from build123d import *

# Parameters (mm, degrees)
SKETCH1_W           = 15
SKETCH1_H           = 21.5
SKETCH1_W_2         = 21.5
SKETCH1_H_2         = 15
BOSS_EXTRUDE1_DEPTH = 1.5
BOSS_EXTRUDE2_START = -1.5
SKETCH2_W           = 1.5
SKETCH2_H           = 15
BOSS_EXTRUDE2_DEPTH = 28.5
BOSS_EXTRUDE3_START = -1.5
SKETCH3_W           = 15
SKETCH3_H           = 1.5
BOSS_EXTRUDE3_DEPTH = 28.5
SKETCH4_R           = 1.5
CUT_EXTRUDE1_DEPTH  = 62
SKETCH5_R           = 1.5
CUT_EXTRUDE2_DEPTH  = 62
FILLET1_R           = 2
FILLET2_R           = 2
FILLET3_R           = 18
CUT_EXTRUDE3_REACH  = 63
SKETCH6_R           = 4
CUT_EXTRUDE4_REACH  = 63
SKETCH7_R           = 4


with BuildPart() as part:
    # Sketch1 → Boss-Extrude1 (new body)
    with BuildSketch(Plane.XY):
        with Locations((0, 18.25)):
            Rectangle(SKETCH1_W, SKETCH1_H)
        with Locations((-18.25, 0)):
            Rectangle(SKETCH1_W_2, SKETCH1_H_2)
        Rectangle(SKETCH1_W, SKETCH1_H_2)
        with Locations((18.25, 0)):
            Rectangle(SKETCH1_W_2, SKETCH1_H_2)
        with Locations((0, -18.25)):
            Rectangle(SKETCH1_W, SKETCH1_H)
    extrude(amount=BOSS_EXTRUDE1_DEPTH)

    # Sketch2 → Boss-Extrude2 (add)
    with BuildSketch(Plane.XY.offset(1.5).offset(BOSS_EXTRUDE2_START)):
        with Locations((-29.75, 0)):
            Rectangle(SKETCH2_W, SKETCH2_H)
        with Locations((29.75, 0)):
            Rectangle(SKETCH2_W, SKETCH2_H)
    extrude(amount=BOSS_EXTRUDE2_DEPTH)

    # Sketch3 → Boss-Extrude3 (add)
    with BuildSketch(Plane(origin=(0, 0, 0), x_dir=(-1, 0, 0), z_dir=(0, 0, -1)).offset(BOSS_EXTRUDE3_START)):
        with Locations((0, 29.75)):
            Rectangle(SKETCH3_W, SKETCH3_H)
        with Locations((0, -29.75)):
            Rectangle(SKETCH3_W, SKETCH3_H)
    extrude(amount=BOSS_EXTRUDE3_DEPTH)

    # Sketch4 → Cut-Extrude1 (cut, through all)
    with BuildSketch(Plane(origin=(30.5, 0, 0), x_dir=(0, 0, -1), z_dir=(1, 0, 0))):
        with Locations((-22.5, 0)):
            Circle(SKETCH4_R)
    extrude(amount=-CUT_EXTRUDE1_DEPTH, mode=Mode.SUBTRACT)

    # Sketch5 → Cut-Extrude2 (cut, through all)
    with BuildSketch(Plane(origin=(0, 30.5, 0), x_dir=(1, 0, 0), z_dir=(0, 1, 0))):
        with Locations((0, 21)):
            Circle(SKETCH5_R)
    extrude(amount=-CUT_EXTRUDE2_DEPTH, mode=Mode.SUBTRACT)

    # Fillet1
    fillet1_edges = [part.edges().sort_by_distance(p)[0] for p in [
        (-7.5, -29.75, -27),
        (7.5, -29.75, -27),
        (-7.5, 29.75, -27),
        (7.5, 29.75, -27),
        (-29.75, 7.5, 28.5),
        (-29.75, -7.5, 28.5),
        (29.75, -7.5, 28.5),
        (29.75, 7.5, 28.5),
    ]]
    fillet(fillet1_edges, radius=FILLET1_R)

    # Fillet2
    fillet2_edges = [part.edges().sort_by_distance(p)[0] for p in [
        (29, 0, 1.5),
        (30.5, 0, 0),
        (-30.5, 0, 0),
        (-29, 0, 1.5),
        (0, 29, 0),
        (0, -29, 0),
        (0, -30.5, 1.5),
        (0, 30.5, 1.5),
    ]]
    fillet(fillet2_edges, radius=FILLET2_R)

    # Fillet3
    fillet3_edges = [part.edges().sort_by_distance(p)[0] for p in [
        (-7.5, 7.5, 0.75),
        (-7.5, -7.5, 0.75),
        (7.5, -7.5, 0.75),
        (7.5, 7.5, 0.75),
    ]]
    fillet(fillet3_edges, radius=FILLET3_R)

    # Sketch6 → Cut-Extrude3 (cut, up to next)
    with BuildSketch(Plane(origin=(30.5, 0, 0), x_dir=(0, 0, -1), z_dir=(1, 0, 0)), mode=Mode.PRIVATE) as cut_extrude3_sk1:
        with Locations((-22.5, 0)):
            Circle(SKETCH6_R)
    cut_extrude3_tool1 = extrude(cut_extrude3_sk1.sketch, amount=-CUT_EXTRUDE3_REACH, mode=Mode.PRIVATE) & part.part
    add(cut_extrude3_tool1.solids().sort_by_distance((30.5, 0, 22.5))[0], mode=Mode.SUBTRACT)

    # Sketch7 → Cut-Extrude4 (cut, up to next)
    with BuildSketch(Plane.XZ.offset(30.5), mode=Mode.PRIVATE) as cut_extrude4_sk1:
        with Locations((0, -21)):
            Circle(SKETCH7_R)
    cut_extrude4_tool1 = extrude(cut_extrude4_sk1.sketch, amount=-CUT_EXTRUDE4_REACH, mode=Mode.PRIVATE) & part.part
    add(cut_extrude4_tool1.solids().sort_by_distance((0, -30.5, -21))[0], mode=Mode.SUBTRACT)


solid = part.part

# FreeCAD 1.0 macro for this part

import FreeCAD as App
import Part
import Sketcher

V = App.Vector


def edges_at(feature, points):
    """Names of the edges that pass closest to the given points."""
    edges = feature.Shape.Edges
    near = lambda p: min(range(len(edges)), key=lambda i: edges[i].distToShape(Part.Vertex(*p))[0])
    return sorted({f"Edge{near(p) + 1}" for p in points})

doc = App.newDocument("Part")
body = doc.addObject("PartDesign::Body", "Body")

sketch1 = body.newObject("Sketcher::SketchObject", "Sketch")
sketch1.AttachmentSupport = (doc.getObject("XY_Plane"), [""])
sketch1.MapMode = "FlatFace"
sketch1.addGeometry([
    Part.LineSegment(V(-8, 29, 0), V(-8, 8, 0)),
    Part.LineSegment(V(-8, 8, 0), V(-29, 8, 0)),
    Part.LineSegment(V(-29, 8, 0), V(-29, -8, 0)),
    Part.LineSegment(V(-29, -8, 0), V(-8, -8, 0)),
    Part.LineSegment(V(-8, -8, 0), V(-8, -29, 0)),
    Part.LineSegment(V(-8, -29, 0), V(8, -29, 0)),
    Part.LineSegment(V(8, -29, 0), V(8, -8, 0)),
    Part.LineSegment(V(8, -8, 0), V(29, -8, 0)),
    Part.LineSegment(V(29, -8, 0), V(29, 8, 0)),
    Part.LineSegment(V(29, 8, 0), V(8, 8, 0)),
    Part.LineSegment(V(8, 8, 0), V(8, 29, 0)),
    Part.LineSegment(V(8, 29, 0), V(-8, 29, 0)),
], False)
sketch1.addConstraint([
    Sketcher.Constraint("Coincident", 0, 2, 1, 1),
    Sketcher.Constraint("Coincident", 1, 2, 2, 1),
    Sketcher.Constraint("Coincident", 2, 2, 3, 1),
    Sketcher.Constraint("Coincident", 3, 2, 4, 1),
    Sketcher.Constraint("Coincident", 4, 2, 5, 1),
    Sketcher.Constraint("Coincident", 5, 2, 6, 1),
    Sketcher.Constraint("Coincident", 6, 2, 7, 1),
    Sketcher.Constraint("Coincident", 7, 2, 8, 1),
    Sketcher.Constraint("Coincident", 8, 2, 9, 1),
    Sketcher.Constraint("Coincident", 9, 2, 10, 1),
    Sketcher.Constraint("Coincident", 10, 2, 11, 1),
    Sketcher.Constraint("Coincident", 11, 2, 0, 1),
    Sketcher.Constraint("Vertical", 0),
    Sketcher.Constraint("Horizontal", 1),
    Sketcher.Constraint("Vertical", 2),
    Sketcher.Constraint("Horizontal", 3),
    Sketcher.Constraint("Vertical", 4),
    Sketcher.Constraint("Horizontal", 5),
    Sketcher.Constraint("Vertical", 6),
    Sketcher.Constraint("Horizontal", 7),
    Sketcher.Constraint("Vertical", 8),
    Sketcher.Constraint("Horizontal", 9),
    Sketcher.Constraint("Vertical", 10),
    Sketcher.Constraint("Horizontal", 11),
    Sketcher.Constraint("Symmetric", 0, 2, 6, 2, -1, 1),
    Sketcher.Constraint("Symmetric", 2, 2, 8, 2, -1, 1),
    Sketcher.Constraint("Symmetric", 4, 2, 10, 2, -1, 1),
    Sketcher.Constraint("Symmetric", 3, 2, 6, 2, -2),
    Sketcher.Constraint("Equal", 9, 0),
    Sketcher.Constraint("Equal", 11, 2),
    Sketcher.Constraint("DistanceX", 5, 1, 5, 2, 15.0),
    Sketcher.Constraint("DistanceX", 1, 2, 1, 1, 21.5),
])
pad1 = body.newObject("PartDesign::Pad", "Pad")
pad1.Profile = sketch1
pad1.Length = 1.5

sketch2 = body.newObject("Sketcher::SketchObject", "Sketch001")
sketch2.AttachmentSupport = (doc.getObject("XY_Plane"), [""])
sketch2.MapMode = "FlatFace"
sketch2.addGeometry([
    Part.LineSegment(V(-30.5, 7.5, 0), V(-30.5, -7.5, 0)),
    Part.LineSegment(V(-30.5, -7.5, 0), V(-29, -7.5, 0)),
    Part.LineSegment(V(-29, -7.5, 0), V(-29, 7.5, 0)),
    Part.LineSegment(V(-29, 7.5, 0), V(-30.5, 7.5, 0)),
    Part.LineSegment(V(29, 7.5, 0), V(29, -7.5, 0)),
    Part.LineSegment(V(29, -7.5, 0), V(30.5, -7.5, 0)),
    Part.LineSegment(V(30.5, -7.5, 0), V(30.5, 7.5, 0)),
    Part.LineSegment(V(30.5, 7.5, 0), V(29, 7.5, 0)),
], False)
sketch2.addConstraint([
    Sketcher.Constraint("Coincident", 0, 2, 1, 1),
    Sketcher.Constraint("Coincident", 1, 2, 2, 1),
    Sketcher.Constraint("Coincident", 2, 2, 3, 1),
    Sketcher.Constraint("Coincident", 3, 2, 0, 1),
    Sketcher.Constraint("Coincident", 4, 2, 5, 1),
    Sketcher.Constraint("Coincident", 5, 2, 6, 1),
    Sketcher.Constraint("Coincident", 6, 2, 7, 1),
    Sketcher.Constraint("Coincident", 7, 2, 4, 1),
    Sketcher.Constraint("Vertical", 0),
    Sketcher.Constraint("Horizontal", 1),
    Sketcher.Constraint("Vertical", 2),
    Sketcher.Constraint("Horizontal", 3),
    Sketcher.Constraint("Vertical", 4),
    Sketcher.Constraint("Horizontal", 5),
    Sketcher.Constraint("Vertical", 6),
    Sketcher.Constraint("Horizontal", 7),
    Sketcher.Constraint("Symmetric", 2, 2, 4, 2, -1, 1),
    Sketcher.Constraint("Symmetric", 0, 2, 6, 2, -1, 1),
    Sketcher.Constraint("Horizontal", 1, 2, 4, 2),
    Sketcher.Constraint("DistanceY", 0, 2, 0, 1, 15.0),
    Sketcher.Constraint("DistanceX", 1, 1, 1, 2, 1.5),
    Sketcher.Constraint("DistanceX", 1, 2, -1, 1, 29.0),
])
pad2 = body.newObject("PartDesign::Pad", "Pad001")
pad2.Profile = sketch2
pad2.Length = 28.5

sketch3 = body.newObject("Sketcher::SketchObject", "Sketch002")
sketch3.AttachmentSupport = (doc.getObject("XY_Plane"), [""])
sketch3.MapMode = "FlatFace"
sketch3.AttachmentOffset = App.Placement(V(0, 0, 1.5), App.Rotation())
sketch3.addGeometry([
    Part.LineSegment(V(7.5, 30.5, 0), V(7.5, 29, 0)),
    Part.LineSegment(V(7.5, 29, 0), V(-7.5, 29, 0)),
    Part.LineSegment(V(-7.5, 29, 0), V(-7.5, 30.5, 0)),
    Part.LineSegment(V(-7.5, 30.5, 0), V(7.5, 30.5, 0)),
    Part.LineSegment(V(7.5, -29, 0), V(7.5, -30.5, 0)),
    Part.LineSegment(V(7.5, -30.5, 0), V(-7.5, -30.5, 0)),
    Part.LineSegment(V(-7.5, -30.5, 0), V(-7.5, -29, 0)),
    Part.LineSegment(V(-7.5, -29, 0), V(7.5, -29, 0)),
], False)
sketch3.addConstraint([
    Sketcher.Constraint("Coincident", 0, 2, 1, 1),
    Sketcher.Constraint("Coincident", 1, 2, 2, 1),
    Sketcher.Constraint("Coincident", 2, 2, 3, 1),
    Sketcher.Constraint("Coincident", 3, 2, 0, 1),
    Sketcher.Constraint("Coincident", 4, 2, 5, 1),
    Sketcher.Constraint("Coincident", 5, 2, 6, 1),
    Sketcher.Constraint("Coincident", 6, 2, 7, 1),
    Sketcher.Constraint("Coincident", 7, 2, 4, 1),
    Sketcher.Constraint("Vertical", 0),
    Sketcher.Constraint("Horizontal", 1),
    Sketcher.Constraint("Vertical", 2),
    Sketcher.Constraint("Horizontal", 3),
    Sketcher.Constraint("Vertical", 4),
    Sketcher.Constraint("Horizontal", 5),
    Sketcher.Constraint("Vertical", 6),
    Sketcher.Constraint("Horizontal", 7),
    Sketcher.Constraint("Symmetric", 2, 2, 4, 2, -1, 1),
    Sketcher.Constraint("Symmetric", 0, 2, 6, 2, -1, 1),
    Sketcher.Constraint("Vertical", 3, 2, 4, 2),
    Sketcher.Constraint("DistanceX", 1, 2, 1, 1, 15.0),
    Sketcher.Constraint("DistanceY", 0, 2, 0, 1, 1.5),
    Sketcher.Constraint("DistanceY", -1, 1, 0, 2, 29.0),
])
pad3 = body.newObject("PartDesign::Pad", "Pad002")
pad3.Profile = sketch3
pad3.Length = 28.5
pad3.Reversed = True

sketch4 = body.newObject("Sketcher::SketchObject", "Sketch003")
sketch4.AttachmentSupport = (doc.getObject("YZ_Plane"), [""])
sketch4.MapMode = "FlatFace"
sketch4.AttachmentOffset = App.Placement(V(0, 0, 30.5), App.Rotation())
sketch4.addGeometry(Part.Circle(V(0, 22.5, 0), V(0, 0, 1), 1.5), False)
sketch4.addConstraint([
    Sketcher.Constraint("PointOnObject", 0, 3, -2),
    Sketcher.Constraint("Diameter", 0, 3.0),
    Sketcher.Constraint("DistanceY", -1, 1, 0, 3, 22.5),
])
pocket1 = body.newObject("PartDesign::Pocket", "Pocket")
pocket1.Profile = sketch4
pocket1.Type = "ThroughAll"

sketch5 = body.newObject("Sketcher::SketchObject", "Sketch004")
sketch5.AttachmentSupport = (doc.getObject("XZ_Plane"), [""])
sketch5.MapMode = "FlatFace"
sketch5.AttachmentOffset = App.Placement(V(0, 0, -30.5), App.Rotation())
sketch5.addGeometry(Part.Circle(V(0, -21, 0), V(0, 0, 1), 1.5), False)
sketch5.addConstraint([
    Sketcher.Constraint("PointOnObject", 0, 3, -2),
    Sketcher.Constraint("Diameter", 0, 3.0),
    Sketcher.Constraint("DistanceY", 0, 3, -1, 1, 21.0),
])
pocket2 = body.newObject("PartDesign::Pocket", "Pocket001")
pocket2.Profile = sketch5
pocket2.Type = "ThroughAll"
pocket2.Reversed = True
doc.recompute()

fillet = body.newObject("PartDesign::Fillet", "Fillet")
fillet.Base = (pocket2, edges_at(pocket2, [
    (-7.5, -29.75, -27),
    (7.5, -29.75, -27),
    (-7.5, 29.75, -27),
    (7.5, 29.75, -27),
    (-29.75, 7.5, 28.5),
    (-29.75, -7.5, 28.5),
    (29.75, -7.5, 28.5),
    (29.75, 7.5, 28.5),
]))
fillet.Radius = 2
doc.recompute()

fillet2 = body.newObject("PartDesign::Fillet", "Fillet001")
fillet2.Base = (fillet, edges_at(fillet, [
    (29, 0, 1.5),
    (30.5, 0, 0),
    (-30.5, 0, 0),
    (-29, 0, 1.5),
    (0, 29, 0),
    (0, -29, 0),
    (0, -30.5, 1.5),
    (0, 30.5, 1.5),
]))
fillet2.Radius = 2
doc.recompute()

fillet3 = body.newObject("PartDesign::Fillet", "Fillet002")
fillet3.Base = (fillet2, edges_at(fillet2, [
    (-7.5, 7.5, 0.75),
    (-7.5, -7.5, 0.75),
    (7.5, -7.5, 0.75),
    (7.5, 7.5, 0.75),
]))
fillet3.Radius = 18

sketch6 = body.newObject("Sketcher::SketchObject", "Sketch005")
sketch6.AttachmentSupport = (doc.getObject("YZ_Plane"), [""])
sketch6.MapMode = "FlatFace"
sketch6.AttachmentOffset = App.Placement(V(0, 0, 30.5), App.Rotation())
sketch6.addGeometry(Part.Circle(V(0, 22.5, 0), V(0, 0, 1), 4), False)
sketch6.addConstraint([
    Sketcher.Constraint("PointOnObject", 0, 3, -2),
    Sketcher.Constraint("Diameter", 0, 8.0),
    Sketcher.Constraint("DistanceY", -1, 1, 0, 3, 22.5),
])
pocket3 = body.newObject("PartDesign::Pocket", "Pocket002")
pocket3.Profile = sketch6
pocket3.Length = 1.5

sketch7 = body.newObject("Sketcher::SketchObject", "Sketch006")
sketch7.AttachmentSupport = (doc.getObject("XZ_Plane"), [""])
sketch7.MapMode = "FlatFace"
sketch7.AttachmentOffset = App.Placement(V(0, 0, 30.5), App.Rotation())
sketch7.addGeometry(Part.Circle(V(0, -21, 0), V(0, 0, 1), 4), False)
sketch7.addConstraint([
    Sketcher.Constraint("PointOnObject", 0, 3, -2),
    Sketcher.Constraint("Diameter", 0, 8.0),
    Sketcher.Constraint("DistanceY", 0, 3, -1, 1, 21.0),
])
pocket4 = body.newObject("PartDesign::Pocket", "Pocket003")
pocket4.Profile = sketch7
pocket4.Length = 1.5

doc.recompute()
